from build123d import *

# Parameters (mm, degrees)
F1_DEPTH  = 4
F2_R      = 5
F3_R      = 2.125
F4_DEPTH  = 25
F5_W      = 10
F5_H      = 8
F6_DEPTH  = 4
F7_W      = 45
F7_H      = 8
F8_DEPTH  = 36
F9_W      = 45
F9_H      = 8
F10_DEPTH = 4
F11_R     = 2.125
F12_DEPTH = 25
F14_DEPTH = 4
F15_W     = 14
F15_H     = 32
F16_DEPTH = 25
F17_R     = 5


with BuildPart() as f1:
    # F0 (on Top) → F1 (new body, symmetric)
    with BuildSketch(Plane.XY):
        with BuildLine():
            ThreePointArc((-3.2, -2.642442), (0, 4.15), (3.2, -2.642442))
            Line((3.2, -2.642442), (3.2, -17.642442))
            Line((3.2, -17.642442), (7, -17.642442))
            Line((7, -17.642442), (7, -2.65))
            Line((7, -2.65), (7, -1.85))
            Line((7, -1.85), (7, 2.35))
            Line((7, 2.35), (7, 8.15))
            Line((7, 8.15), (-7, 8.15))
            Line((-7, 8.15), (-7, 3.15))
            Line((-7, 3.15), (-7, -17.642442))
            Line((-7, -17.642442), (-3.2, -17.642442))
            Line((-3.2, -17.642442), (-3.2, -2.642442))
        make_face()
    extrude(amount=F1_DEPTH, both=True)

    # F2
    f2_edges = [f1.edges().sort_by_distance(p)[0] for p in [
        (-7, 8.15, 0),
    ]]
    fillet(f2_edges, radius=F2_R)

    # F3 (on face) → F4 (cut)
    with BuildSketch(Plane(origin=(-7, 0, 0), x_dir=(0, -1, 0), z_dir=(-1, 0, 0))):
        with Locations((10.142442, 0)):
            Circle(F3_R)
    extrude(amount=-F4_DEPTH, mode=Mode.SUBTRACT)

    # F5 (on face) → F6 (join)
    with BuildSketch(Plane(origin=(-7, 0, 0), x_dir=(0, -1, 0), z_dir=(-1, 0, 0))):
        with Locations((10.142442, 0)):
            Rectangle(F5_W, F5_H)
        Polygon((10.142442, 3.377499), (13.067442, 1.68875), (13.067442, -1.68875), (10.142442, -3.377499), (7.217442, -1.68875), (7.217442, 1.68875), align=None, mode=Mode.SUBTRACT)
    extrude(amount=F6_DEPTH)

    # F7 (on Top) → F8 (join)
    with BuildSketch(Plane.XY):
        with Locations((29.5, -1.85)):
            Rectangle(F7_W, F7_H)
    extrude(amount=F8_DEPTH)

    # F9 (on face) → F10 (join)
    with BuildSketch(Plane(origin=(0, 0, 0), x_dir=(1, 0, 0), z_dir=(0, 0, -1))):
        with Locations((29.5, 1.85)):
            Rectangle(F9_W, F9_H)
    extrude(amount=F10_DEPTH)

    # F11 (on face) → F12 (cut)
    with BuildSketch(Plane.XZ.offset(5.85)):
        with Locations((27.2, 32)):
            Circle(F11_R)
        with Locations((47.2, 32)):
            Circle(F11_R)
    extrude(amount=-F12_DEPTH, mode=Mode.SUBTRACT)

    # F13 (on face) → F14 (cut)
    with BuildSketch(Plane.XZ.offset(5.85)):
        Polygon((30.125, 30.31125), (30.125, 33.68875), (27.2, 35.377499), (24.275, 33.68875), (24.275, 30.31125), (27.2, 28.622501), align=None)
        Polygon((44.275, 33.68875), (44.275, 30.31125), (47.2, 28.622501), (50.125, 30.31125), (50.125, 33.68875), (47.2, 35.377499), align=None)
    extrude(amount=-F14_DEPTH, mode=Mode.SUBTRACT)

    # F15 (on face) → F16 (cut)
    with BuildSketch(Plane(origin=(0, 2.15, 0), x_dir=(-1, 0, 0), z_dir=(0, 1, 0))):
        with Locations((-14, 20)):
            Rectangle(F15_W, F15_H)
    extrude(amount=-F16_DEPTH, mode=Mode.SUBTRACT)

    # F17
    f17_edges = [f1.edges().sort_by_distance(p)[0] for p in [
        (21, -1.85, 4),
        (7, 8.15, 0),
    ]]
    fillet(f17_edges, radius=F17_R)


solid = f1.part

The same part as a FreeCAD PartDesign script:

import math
import FreeCAD as App
import Part
import Sketcher
Q = App.Units.Quantity


def edges_at(feature, points):
    """Names of the edges that pass closest to the given points."""
    edges = feature.Shape.Edges
    near = lambda p: min(range(len(edges)), key=lambda i: edges[i].distToShape(Part.Vertex(*p))[0])
    return sorted({f"Edge{near(p) + 1}" for p in points})

doc = App.newDocument("Part")
body = doc.addObject("PartDesign::Body", "Body")

# Sketch on XY plane
sketch1 = body.newObject("Sketcher::SketchObject", "Sketch")
sketch1.AttachmentSupport = (doc.getObject("XY_Plane"), [""])
sketch1.MapMode = "FlatFace"
sketch1.addGeometry([
    Part.ArcOfCircle(Part.Circle(App.Vector(0, 0, 0), App.Vector(0, 0, 1), 4.1), math.radians(-40), math.radians(220)),  # 0
    Part.LineSegment(App.Vector(3.2, -2.6, 0), App.Vector(3.2, -17.6, 0)),  # 1
    Part.LineSegment(App.Vector(3.2, -17.6, 0), App.Vector(7, -17.6, 0)),  # 2
    Part.LineSegment(App.Vector(7, -17.6, 0), App.Vector(7, 8.2, 0)),  # 3
    Part.LineSegment(App.Vector(7, 8.2, 0), App.Vector(-7, 8.2, 0)),  # 4
    Part.LineSegment(App.Vector(-7, 8.2, 0), App.Vector(-7, -17.6, 0)),  # 5
    Part.LineSegment(App.Vector(-7, -17.6, 0), App.Vector(-3.2, -17.6, 0)),  # 6
    Part.LineSegment(App.Vector(-3.2, -17.6, 0), App.Vector(-3.2, -2.6, 0)),  # 7
], False)
sketch1.addConstraint([
    Sketcher.Constraint("Coincident", 0, 1, 1, 1),
    Sketcher.Constraint("Coincident", 1, 2, 2, 1),
    Sketcher.Constraint("Coincident", 2, 2, 3, 1),
    Sketcher.Constraint("Coincident", 3, 2, 4, 1),
    Sketcher.Constraint("Coincident", 4, 2, 5, 1),
    Sketcher.Constraint("Coincident", 5, 2, 6, 1),
    Sketcher.Constraint("Coincident", 6, 2, 7, 1),
    Sketcher.Constraint("Coincident", 7, 2, 0, 2),
    Sketcher.Constraint("Vertical", 1),
    Sketcher.Constraint("Horizontal", 2),
    Sketcher.Constraint("Vertical", 3),
    Sketcher.Constraint("Horizontal", 4),
    Sketcher.Constraint("Vertical", 5),
    Sketcher.Constraint("Horizontal", 6),
    Sketcher.Constraint("Vertical", 7),
    Sketcher.Constraint("Coincident", 0, 3, -1, 1),
    Sketcher.Constraint("Symmetric", 2, 2, 5, 2, -2),
    Sketcher.Constraint("Horizontal", 0, 1, 7, 2),
    Sketcher.Constraint("DistanceX", 4, 2, 4, 1, 14.0),
    Sketcher.Constraint("DistanceY", 1, 2, 1, 1, 15.0),
    Sketcher.Constraint("Radius", 0, 4.15),
    Sketcher.Constraint("DistanceX", 2, 1, 2, 2, 3.8),
    Sketcher.Constraint("DistanceY", -1, 1, 3, 2, 8.15),
])
pad1 = body.newObject("PartDesign::Pad", "Pad")
pad1.Profile = sketch1
pad1.Length = 8
pad1.Midplane = True
doc.recompute()

fillet = body.newObject("PartDesign::Fillet", "Fillet")
fillet.Base = (pad1, edges_at(pad1, [(-7, 8.15, 0)]))
fillet.Radius = 5

# Sketch on YZ plane
sketch2 = body.newObject("Sketcher::SketchObject", "Sketch001")
sketch2.AttachmentSupport = (doc.getObject("YZ_Plane"), [""])
sketch2.MapMode = "FlatFace"
sketch2.AttachmentOffset = App.Placement(App.Vector(0, 0, -7), App.Rotation())
sketch2.addGeometry(Part.Circle(App.Vector(-10.1, 0, 0), App.Vector(0, 0, 1), 2.1), False)
sketch2.addConstraint([
    Sketcher.Constraint("PointOnObject", 0, 3, -1),
    Sketcher.Constraint("Diameter", 0, 4.25),
    Sketcher.Constraint("DistanceX", 0, 3, -1, 1, 10.142442),
])
pocket1 = body.newObject("PartDesign::Pocket", "Pocket")
pocket1.Profile = sketch2
pocket1.Length = 25
pocket1.Reversed = True

# Sketch on YZ plane
sketch3 = body.newObject("Sketcher::SketchObject", "Sketch002")
sketch3.AttachmentSupport = (doc.getObject("YZ_Plane"), [""])
sketch3.MapMode = "FlatFace"
sketch3.AttachmentOffset = App.Placement(App.Vector(0, 0, -7), App.Rotation())
sketch3.addGeometry([
    Part.LineSegment(App.Vector(-5.1, 4, 0), App.Vector(-5.1, -4, 0)),  # 0
    Part.LineSegment(App.Vector(-5.1, -4, 0), App.Vector(-15.1, -4, 0)),  # 1
    Part.LineSegment(App.Vector(-15.1, -4, 0), App.Vector(-15.1, 4, 0)),  # 2
    Part.LineSegment(App.Vector(-15.1, 4, 0), App.Vector(-5.1, 4, 0)),  # 3
    Part.LineSegment(App.Vector(-7.2, 1.7, 0), App.Vector(-10.1, 3.4, 0)),  # 4
    Part.LineSegment(App.Vector(-10.1, 3.4, 0), App.Vector(-13.1, 1.7, 0)),  # 5
    Part.LineSegment(App.Vector(-13.1, 1.7, 0), App.Vector(-13.1, -1.7, 0)),  # 6
    Part.LineSegment(App.Vector(-13.1, -1.7, 0), App.Vector(-10.1, -3.4, 0)),  # 7
    Part.LineSegment(App.Vector(-10.1, -3.4, 0), App.Vector(-7.2, -1.7, 0)),  # 8
    Part.LineSegment(App.Vector(-7.2, -1.7, 0), App.Vector(-7.2, 1.7, 0)),  # 9
], False)
sketch3.addConstraint([
    Sketcher.Constraint("Coincident", 0, 2, 1, 1),
    Sketcher.Constraint("Coincident", 1, 2, 2, 1),
    Sketcher.Constraint("Coincident", 2, 2, 3, 1),
    Sketcher.Constraint("Coincident", 3, 2, 0, 1),
    Sketcher.Constraint("Coincident", 4, 2, 5, 1),
    Sketcher.Constraint("Coincident", 5, 2, 6, 1),
    Sketcher.Constraint("Coincident", 6, 2, 7, 1),
    Sketcher.Constraint("Coincident", 7, 2, 8, 1),
    Sketcher.Constraint("Coincident", 8, 2, 9, 1),
    Sketcher.Constraint("Coincident", 9, 2, 4, 1),
    Sketcher.Constraint("Vertical", 0),
    Sketcher.Constraint("Horizontal", 1),
    Sketcher.Constraint("Vertical", 2),
    Sketcher.Constraint("Horizontal", 3),
    Sketcher.Constraint("Vertical", 6),
    Sketcher.Constraint("Vertical", 9),
    Sketcher.Constraint("Symmetric", 4, 2, 7, 2, -1),
    Sketcher.Constraint("Parallel", 4, 7),
    Sketcher.Constraint("Parallel", 5, 8),
    Sketcher.Constraint("Horizontal", 6, 2, 8, 2),
    Sketcher.Constraint("Horizontal", 5, 2, 9, 2),
    Sketcher.Constraint("DistanceX", 1, 2, 1, 1, 10.0),
    Sketcher.Constraint("DistanceY", 0, 2, 0, 1, 8.0),
    Sketcher.Constraint("Angle", 4, Q("150.000008 deg")),
    Sketcher.Constraint("DistanceY", 0, 2, -1, 1, 4.0),
    Sketcher.Constraint("DistanceX", 2, 2, 4, 2, 5.0),
    Sketcher.Constraint("DistanceX", 6, 2, 8, 2, 5.85),
    Sketcher.Constraint("DistanceY", 6, 2, 6, 1, 3.3775),
    Sketcher.Constraint("DistanceX", 0, 2, -1, 1, 5.142442),
])
pad2 = body.newObject("PartDesign::Pad", "Pad001")
pad2.Profile = sketch3
pad2.Length = 4
pad2.Reversed = True

# Sketch on XY plane
sketch4 = body.newObject("Sketcher::SketchObject", "Sketch003")
sketch4.AttachmentSupport = (doc.getObject("XY_Plane"), [""])
sketch4.MapMode = "FlatFace"
sketch4.addGeometry([
    Part.LineSegment(App.Vector(7, 2, 0), App.Vector(7, -6, 0)),
    Part.LineSegment(App.Vector(7, -6, 0), App.Vector(52, -6, 0)),
    Part.LineSegment(App.Vector(52, -6, 0), App.Vector(52, 2, 0)),
    Part.LineSegment(App.Vector(52, 2, 0), App.Vector(7, 2, 0)),
], False)
sketch4.addConstraint([
    Sketcher.Constraint("Coincident", 0, 2, 1, 1),
    Sketcher.Constraint("Coincident", 1, 2, 2, 1),
    Sketcher.Constraint("Coincident", 2, 2, 3, 1),
    Sketcher.Constraint("Coincident", 3, 2, 0, 1),
    Sketcher.Constraint("Vertical", 0),
    Sketcher.Constraint("Horizontal", 1),
    Sketcher.Constraint("Vertical", 2),
    Sketcher.Constraint("Horizontal", 3),
    Sketcher.Constraint("DistanceX", 1, 1, 1, 2, 45.0),
    Sketcher.Constraint("DistanceY", 0, 2, 0, 1, 8.0),
    Sketcher.Constraint("DistanceX", -1, 1, 0, 2, 7.0),
    Sketcher.Constraint("DistanceY", 0, 2, -1, 1, 5.85),
])
pad3 = body.newObject("PartDesign::Pad", "Pad002")
pad3.Profile = sketch4
pad3.Length = 36

# Sketch on XY plane
sketch5 = body.newObject("Sketcher::SketchObject", "Sketch004")
sketch5.AttachmentSupport = (doc.getObject("XY_Plane"), [""])
sketch5.MapMode = "FlatFace"
sketch5.addGeometry([
    Part.LineSegment(App.Vector(7, -6, 0), App.Vector(7, 2, 0)),
    Part.LineSegment(App.Vector(7, 2, 0), App.Vector(52, 2, 0)),
    Part.LineSegment(App.Vector(52, 2, 0), App.Vector(52, -6, 0)),
    Part.LineSegment(App.Vector(52, -6, 0), App.Vector(7, -6, 0)),
], False)
sketch5.addConstraint([
    Sketcher.Constraint("Coincident", 0, 2, 1, 1),
    Sketcher.Constraint("Coincident", 1, 2, 2, 1),
    Sketcher.Constraint("Coincident", 2, 2, 3, 1),
    Sketcher.Constraint("Coincident", 3, 2, 0, 1),
    Sketcher.Constraint("Vertical", 0),
    Sketcher.Constraint("Horizontal", 1),
    Sketcher.Constraint("Vertical", 2),
    Sketcher.Constraint("Horizontal", 3),
    Sketcher.Constraint("DistanceX", 1, 1, 1, 2, 45.0),
    Sketcher.Constraint("DistanceY", 0, 1, 0, 2, 8.0),
    Sketcher.Constraint("DistanceX", -1, 1, 0, 2, 7.0),
    Sketcher.Constraint("DistanceY", -1, 1, 0, 2, 2.15),
])
pad4 = body.newObject("PartDesign::Pad", "Pad003")
pad4.Profile = sketch5
pad4.Length = 4
pad4.Reversed = True

# Sketch on XZ plane
sketch6 = body.newObject("Sketcher::SketchObject", "Sketch005")
sketch6.AttachmentSupport = (doc.getObject("XZ_Plane"), [""])
sketch6.MapMode = "FlatFace"
sketch6.AttachmentOffset = App.Placement(App.Vector(0, 0, 5.85), App.Rotation())
sketch6.addGeometry([
    Part.Circle(App.Vector(27.2, 32, 0), App.Vector(0, 0, 1), 2.1),
    Part.Circle(App.Vector(47.2, 32, 0), App.Vector(0, 0, 1), 2.1),
], False)
sketch6.addConstraint([
    Sketcher.Constraint("Equal", 0, 1),
    Sketcher.Constraint("Horizontal", 0, 3, 1, 3),
    Sketcher.Constraint("Diameter", 0, 4.25),
    Sketcher.Constraint("DistanceY", -1, 1, 0, 3, 32.0),
    Sketcher.Constraint("DistanceX", 0, 3, 1, 3, 20.0),
    Sketcher.Constraint("DistanceX", -1, 1, 0, 3, 27.2),
])
pocket2 = body.newObject("PartDesign::Pocket", "Pocket001")
pocket2.Profile = sketch6
pocket2.Length = 25

# Sketch on XZ plane
sketch7 = body.newObject("Sketcher::SketchObject", "Sketch006")
sketch7.AttachmentSupport = (doc.getObject("XZ_Plane"), [""])
sketch7.MapMode = "FlatFace"
sketch7.AttachmentOffset = App.Placement(App.Vector(0, 0, 5.85), App.Rotation())
sketch7.addGeometry([
    Part.LineSegment(App.Vector(30.1, 30.3, 0), App.Vector(30.1, 33.7, 0)),  # 0
    Part.LineSegment(App.Vector(30.1, 33.7, 0), App.Vector(27.2, 35.4, 0)),  # 1
    Part.LineSegment(App.Vector(27.2, 35.4, 0), App.Vector(24.3, 33.7, 0)),  # 2
    Part.LineSegment(App.Vector(24.3, 33.7, 0), App.Vector(24.3, 30.3, 0)),  # 3
    Part.LineSegment(App.Vector(24.3, 30.3, 0), App.Vector(27.2, 28.6, 0)),  # 4
    Part.LineSegment(App.Vector(27.2, 28.6, 0), App.Vector(30.1, 30.3, 0)),  # 5
    Part.LineSegment(App.Vector(44.3, 33.7, 0), App.Vector(44.3, 30.3, 0)),  # 6
    Part.LineSegment(App.Vector(44.3, 30.3, 0), App.Vector(47.2, 28.6, 0)),  # 7
    Part.LineSegment(App.Vector(47.2, 28.6, 0), App.Vector(50.1, 30.3, 0)),  # 8
    Part.LineSegment(App.Vector(50.1, 30.3, 0), App.Vector(50.1, 33.7, 0)),  # 9
    Part.LineSegment(App.Vector(50.1, 33.7, 0), App.Vector(47.2, 35.4, 0)),  # 10
    Part.LineSegment(App.Vector(47.2, 35.4, 0), App.Vector(44.3, 33.7, 0)),  # 11
], False)
sketch7.addConstraint([
    Sketcher.Constraint("Coincident", 0, 2, 1, 1),
    Sketcher.Constraint("Coincident", 1, 2, 2, 1),
    Sketcher.Constraint("Coincident", 2, 2, 3, 1),
    Sketcher.Constraint("Coincident", 3, 2, 4, 1),
    Sketcher.Constraint("Coincident", 4, 2, 5, 1),
    Sketcher.Constraint("Coincident", 5, 2, 0, 1),
    Sketcher.Constraint("Coincident", 6, 2, 7, 1),
    Sketcher.Constraint("Coincident", 7, 2, 8, 1),
    Sketcher.Constraint("Coincident", 8, 2, 9, 1),
    Sketcher.Constraint("Coincident", 9, 2, 10, 1),
    Sketcher.Constraint("Coincident", 10, 2, 11, 1),
    Sketcher.Constraint("Coincident", 11, 2, 6, 1),
    Sketcher.Constraint("Vertical", 0),
    Sketcher.Constraint("Vertical", 3),
    Sketcher.Constraint("Vertical", 6),
    Sketcher.Constraint("Vertical", 9),
    Sketcher.Constraint("Parallel", 1, 4),
    Sketcher.Constraint("Parallel", 2, 5),
    Sketcher.Constraint("Parallel", 4, 7),
    Sketcher.Constraint("Parallel", 5, 8),
    Sketcher.Constraint("Parallel", 7, 10),
    Sketcher.Constraint("Parallel", 8, 11),
    Sketcher.Constraint("Horizontal", 0, 2, 2, 2),
    Sketcher.Constraint("Horizontal", 3, 2, 5, 2),
    Sketcher.Constraint("Horizontal", 5, 2, 6, 2),
    Sketcher.Constraint("Horizontal", 4, 2, 7, 2),
    Sketcher.Constraint("Horizontal", 6, 2, 8, 2),
    Sketcher.Constraint("Horizontal", 2, 2, 9, 2),
    Sketcher.Constraint("Horizontal", 1, 2, 10, 2),
    Sketcher.Constraint("Vertical", 1, 2, 4, 2),
    Sketcher.Constraint("Angle", 1, Q("150.000008 deg")),
    Sketcher.Constraint("DistanceX", 3, 2, 6, 2, 20.0),
    Sketcher.Constraint("DistanceX", -1, 1, 1, 2, 27.2),
    Sketcher.Constraint("DistanceX", 2, 2, 0, 2, 5.85),
    Sketcher.Constraint("DistanceY", 0, 1, 0, 2, 3.3775),
    Sketcher.Constraint("DistanceY", -1, 1, 1, 2, 35.377499),
])
pocket3 = body.newObject("PartDesign::Pocket", "Pocket002")
pocket3.Profile = sketch7
pocket3.Length = 4

# Sketch on XZ plane
sketch8 = body.newObject("Sketcher::SketchObject", "Sketch007")
sketch8.AttachmentSupport = (doc.getObject("XZ_Plane"), [""])
sketch8.MapMode = "FlatFace"
sketch8.AttachmentOffset = App.Placement(App.Vector(0, 0, -2.15), App.Rotation())
sketch8.addGeometry([
    Part.LineSegment(App.Vector(21, 36, 0), App.Vector(21, 4, 0)),
    Part.LineSegment(App.Vector(21, 4, 0), App.Vector(7, 4, 0)),
    Part.LineSegment(App.Vector(7, 4, 0), App.Vector(7, 36, 0)),
    Part.LineSegment(App.Vector(7, 36, 0), App.Vector(21, 36, 0)),
], False)
sketch8.addConstraint([
    Sketcher.Constraint("Coincident", 0, 2, 1, 1),
    Sketcher.Constraint("Coincident", 1, 2, 2, 1),
    Sketcher.Constraint("Coincident", 2, 2, 3, 1),
    Sketcher.Constraint("Coincident", 3, 2, 0, 1),
    Sketcher.Constraint("Vertical", 0),
    Sketcher.Constraint("Horizontal", 1),
    Sketcher.Constraint("Vertical", 2),
    Sketcher.Constraint("Horizontal", 3),
    Sketcher.Constraint("DistanceX", 1, 2, 1, 1, 14.0),
    Sketcher.Constraint("DistanceY", 0, 2, 0, 1, 32.0),
    Sketcher.Constraint("DistanceX", -1, 1, 0, 2, 21.0),
    Sketcher.Constraint("DistanceY", -1, 1, 0, 2, 4.0),
])
pocket4 = body.newObject("PartDesign::Pocket", "Pocket003")
pocket4.Profile = sketch8
pocket4.Length = 25
pocket4.Reversed = True
doc.recompute()

fillet2 = body.newObject("PartDesign::Fillet", "Fillet001")
fillet2.Base = (pocket4, edges_at(pocket4, [(21, -1.85, 4), (7, 8.15, 0)]))
fillet2.Radius = 5

doc.recompute()
